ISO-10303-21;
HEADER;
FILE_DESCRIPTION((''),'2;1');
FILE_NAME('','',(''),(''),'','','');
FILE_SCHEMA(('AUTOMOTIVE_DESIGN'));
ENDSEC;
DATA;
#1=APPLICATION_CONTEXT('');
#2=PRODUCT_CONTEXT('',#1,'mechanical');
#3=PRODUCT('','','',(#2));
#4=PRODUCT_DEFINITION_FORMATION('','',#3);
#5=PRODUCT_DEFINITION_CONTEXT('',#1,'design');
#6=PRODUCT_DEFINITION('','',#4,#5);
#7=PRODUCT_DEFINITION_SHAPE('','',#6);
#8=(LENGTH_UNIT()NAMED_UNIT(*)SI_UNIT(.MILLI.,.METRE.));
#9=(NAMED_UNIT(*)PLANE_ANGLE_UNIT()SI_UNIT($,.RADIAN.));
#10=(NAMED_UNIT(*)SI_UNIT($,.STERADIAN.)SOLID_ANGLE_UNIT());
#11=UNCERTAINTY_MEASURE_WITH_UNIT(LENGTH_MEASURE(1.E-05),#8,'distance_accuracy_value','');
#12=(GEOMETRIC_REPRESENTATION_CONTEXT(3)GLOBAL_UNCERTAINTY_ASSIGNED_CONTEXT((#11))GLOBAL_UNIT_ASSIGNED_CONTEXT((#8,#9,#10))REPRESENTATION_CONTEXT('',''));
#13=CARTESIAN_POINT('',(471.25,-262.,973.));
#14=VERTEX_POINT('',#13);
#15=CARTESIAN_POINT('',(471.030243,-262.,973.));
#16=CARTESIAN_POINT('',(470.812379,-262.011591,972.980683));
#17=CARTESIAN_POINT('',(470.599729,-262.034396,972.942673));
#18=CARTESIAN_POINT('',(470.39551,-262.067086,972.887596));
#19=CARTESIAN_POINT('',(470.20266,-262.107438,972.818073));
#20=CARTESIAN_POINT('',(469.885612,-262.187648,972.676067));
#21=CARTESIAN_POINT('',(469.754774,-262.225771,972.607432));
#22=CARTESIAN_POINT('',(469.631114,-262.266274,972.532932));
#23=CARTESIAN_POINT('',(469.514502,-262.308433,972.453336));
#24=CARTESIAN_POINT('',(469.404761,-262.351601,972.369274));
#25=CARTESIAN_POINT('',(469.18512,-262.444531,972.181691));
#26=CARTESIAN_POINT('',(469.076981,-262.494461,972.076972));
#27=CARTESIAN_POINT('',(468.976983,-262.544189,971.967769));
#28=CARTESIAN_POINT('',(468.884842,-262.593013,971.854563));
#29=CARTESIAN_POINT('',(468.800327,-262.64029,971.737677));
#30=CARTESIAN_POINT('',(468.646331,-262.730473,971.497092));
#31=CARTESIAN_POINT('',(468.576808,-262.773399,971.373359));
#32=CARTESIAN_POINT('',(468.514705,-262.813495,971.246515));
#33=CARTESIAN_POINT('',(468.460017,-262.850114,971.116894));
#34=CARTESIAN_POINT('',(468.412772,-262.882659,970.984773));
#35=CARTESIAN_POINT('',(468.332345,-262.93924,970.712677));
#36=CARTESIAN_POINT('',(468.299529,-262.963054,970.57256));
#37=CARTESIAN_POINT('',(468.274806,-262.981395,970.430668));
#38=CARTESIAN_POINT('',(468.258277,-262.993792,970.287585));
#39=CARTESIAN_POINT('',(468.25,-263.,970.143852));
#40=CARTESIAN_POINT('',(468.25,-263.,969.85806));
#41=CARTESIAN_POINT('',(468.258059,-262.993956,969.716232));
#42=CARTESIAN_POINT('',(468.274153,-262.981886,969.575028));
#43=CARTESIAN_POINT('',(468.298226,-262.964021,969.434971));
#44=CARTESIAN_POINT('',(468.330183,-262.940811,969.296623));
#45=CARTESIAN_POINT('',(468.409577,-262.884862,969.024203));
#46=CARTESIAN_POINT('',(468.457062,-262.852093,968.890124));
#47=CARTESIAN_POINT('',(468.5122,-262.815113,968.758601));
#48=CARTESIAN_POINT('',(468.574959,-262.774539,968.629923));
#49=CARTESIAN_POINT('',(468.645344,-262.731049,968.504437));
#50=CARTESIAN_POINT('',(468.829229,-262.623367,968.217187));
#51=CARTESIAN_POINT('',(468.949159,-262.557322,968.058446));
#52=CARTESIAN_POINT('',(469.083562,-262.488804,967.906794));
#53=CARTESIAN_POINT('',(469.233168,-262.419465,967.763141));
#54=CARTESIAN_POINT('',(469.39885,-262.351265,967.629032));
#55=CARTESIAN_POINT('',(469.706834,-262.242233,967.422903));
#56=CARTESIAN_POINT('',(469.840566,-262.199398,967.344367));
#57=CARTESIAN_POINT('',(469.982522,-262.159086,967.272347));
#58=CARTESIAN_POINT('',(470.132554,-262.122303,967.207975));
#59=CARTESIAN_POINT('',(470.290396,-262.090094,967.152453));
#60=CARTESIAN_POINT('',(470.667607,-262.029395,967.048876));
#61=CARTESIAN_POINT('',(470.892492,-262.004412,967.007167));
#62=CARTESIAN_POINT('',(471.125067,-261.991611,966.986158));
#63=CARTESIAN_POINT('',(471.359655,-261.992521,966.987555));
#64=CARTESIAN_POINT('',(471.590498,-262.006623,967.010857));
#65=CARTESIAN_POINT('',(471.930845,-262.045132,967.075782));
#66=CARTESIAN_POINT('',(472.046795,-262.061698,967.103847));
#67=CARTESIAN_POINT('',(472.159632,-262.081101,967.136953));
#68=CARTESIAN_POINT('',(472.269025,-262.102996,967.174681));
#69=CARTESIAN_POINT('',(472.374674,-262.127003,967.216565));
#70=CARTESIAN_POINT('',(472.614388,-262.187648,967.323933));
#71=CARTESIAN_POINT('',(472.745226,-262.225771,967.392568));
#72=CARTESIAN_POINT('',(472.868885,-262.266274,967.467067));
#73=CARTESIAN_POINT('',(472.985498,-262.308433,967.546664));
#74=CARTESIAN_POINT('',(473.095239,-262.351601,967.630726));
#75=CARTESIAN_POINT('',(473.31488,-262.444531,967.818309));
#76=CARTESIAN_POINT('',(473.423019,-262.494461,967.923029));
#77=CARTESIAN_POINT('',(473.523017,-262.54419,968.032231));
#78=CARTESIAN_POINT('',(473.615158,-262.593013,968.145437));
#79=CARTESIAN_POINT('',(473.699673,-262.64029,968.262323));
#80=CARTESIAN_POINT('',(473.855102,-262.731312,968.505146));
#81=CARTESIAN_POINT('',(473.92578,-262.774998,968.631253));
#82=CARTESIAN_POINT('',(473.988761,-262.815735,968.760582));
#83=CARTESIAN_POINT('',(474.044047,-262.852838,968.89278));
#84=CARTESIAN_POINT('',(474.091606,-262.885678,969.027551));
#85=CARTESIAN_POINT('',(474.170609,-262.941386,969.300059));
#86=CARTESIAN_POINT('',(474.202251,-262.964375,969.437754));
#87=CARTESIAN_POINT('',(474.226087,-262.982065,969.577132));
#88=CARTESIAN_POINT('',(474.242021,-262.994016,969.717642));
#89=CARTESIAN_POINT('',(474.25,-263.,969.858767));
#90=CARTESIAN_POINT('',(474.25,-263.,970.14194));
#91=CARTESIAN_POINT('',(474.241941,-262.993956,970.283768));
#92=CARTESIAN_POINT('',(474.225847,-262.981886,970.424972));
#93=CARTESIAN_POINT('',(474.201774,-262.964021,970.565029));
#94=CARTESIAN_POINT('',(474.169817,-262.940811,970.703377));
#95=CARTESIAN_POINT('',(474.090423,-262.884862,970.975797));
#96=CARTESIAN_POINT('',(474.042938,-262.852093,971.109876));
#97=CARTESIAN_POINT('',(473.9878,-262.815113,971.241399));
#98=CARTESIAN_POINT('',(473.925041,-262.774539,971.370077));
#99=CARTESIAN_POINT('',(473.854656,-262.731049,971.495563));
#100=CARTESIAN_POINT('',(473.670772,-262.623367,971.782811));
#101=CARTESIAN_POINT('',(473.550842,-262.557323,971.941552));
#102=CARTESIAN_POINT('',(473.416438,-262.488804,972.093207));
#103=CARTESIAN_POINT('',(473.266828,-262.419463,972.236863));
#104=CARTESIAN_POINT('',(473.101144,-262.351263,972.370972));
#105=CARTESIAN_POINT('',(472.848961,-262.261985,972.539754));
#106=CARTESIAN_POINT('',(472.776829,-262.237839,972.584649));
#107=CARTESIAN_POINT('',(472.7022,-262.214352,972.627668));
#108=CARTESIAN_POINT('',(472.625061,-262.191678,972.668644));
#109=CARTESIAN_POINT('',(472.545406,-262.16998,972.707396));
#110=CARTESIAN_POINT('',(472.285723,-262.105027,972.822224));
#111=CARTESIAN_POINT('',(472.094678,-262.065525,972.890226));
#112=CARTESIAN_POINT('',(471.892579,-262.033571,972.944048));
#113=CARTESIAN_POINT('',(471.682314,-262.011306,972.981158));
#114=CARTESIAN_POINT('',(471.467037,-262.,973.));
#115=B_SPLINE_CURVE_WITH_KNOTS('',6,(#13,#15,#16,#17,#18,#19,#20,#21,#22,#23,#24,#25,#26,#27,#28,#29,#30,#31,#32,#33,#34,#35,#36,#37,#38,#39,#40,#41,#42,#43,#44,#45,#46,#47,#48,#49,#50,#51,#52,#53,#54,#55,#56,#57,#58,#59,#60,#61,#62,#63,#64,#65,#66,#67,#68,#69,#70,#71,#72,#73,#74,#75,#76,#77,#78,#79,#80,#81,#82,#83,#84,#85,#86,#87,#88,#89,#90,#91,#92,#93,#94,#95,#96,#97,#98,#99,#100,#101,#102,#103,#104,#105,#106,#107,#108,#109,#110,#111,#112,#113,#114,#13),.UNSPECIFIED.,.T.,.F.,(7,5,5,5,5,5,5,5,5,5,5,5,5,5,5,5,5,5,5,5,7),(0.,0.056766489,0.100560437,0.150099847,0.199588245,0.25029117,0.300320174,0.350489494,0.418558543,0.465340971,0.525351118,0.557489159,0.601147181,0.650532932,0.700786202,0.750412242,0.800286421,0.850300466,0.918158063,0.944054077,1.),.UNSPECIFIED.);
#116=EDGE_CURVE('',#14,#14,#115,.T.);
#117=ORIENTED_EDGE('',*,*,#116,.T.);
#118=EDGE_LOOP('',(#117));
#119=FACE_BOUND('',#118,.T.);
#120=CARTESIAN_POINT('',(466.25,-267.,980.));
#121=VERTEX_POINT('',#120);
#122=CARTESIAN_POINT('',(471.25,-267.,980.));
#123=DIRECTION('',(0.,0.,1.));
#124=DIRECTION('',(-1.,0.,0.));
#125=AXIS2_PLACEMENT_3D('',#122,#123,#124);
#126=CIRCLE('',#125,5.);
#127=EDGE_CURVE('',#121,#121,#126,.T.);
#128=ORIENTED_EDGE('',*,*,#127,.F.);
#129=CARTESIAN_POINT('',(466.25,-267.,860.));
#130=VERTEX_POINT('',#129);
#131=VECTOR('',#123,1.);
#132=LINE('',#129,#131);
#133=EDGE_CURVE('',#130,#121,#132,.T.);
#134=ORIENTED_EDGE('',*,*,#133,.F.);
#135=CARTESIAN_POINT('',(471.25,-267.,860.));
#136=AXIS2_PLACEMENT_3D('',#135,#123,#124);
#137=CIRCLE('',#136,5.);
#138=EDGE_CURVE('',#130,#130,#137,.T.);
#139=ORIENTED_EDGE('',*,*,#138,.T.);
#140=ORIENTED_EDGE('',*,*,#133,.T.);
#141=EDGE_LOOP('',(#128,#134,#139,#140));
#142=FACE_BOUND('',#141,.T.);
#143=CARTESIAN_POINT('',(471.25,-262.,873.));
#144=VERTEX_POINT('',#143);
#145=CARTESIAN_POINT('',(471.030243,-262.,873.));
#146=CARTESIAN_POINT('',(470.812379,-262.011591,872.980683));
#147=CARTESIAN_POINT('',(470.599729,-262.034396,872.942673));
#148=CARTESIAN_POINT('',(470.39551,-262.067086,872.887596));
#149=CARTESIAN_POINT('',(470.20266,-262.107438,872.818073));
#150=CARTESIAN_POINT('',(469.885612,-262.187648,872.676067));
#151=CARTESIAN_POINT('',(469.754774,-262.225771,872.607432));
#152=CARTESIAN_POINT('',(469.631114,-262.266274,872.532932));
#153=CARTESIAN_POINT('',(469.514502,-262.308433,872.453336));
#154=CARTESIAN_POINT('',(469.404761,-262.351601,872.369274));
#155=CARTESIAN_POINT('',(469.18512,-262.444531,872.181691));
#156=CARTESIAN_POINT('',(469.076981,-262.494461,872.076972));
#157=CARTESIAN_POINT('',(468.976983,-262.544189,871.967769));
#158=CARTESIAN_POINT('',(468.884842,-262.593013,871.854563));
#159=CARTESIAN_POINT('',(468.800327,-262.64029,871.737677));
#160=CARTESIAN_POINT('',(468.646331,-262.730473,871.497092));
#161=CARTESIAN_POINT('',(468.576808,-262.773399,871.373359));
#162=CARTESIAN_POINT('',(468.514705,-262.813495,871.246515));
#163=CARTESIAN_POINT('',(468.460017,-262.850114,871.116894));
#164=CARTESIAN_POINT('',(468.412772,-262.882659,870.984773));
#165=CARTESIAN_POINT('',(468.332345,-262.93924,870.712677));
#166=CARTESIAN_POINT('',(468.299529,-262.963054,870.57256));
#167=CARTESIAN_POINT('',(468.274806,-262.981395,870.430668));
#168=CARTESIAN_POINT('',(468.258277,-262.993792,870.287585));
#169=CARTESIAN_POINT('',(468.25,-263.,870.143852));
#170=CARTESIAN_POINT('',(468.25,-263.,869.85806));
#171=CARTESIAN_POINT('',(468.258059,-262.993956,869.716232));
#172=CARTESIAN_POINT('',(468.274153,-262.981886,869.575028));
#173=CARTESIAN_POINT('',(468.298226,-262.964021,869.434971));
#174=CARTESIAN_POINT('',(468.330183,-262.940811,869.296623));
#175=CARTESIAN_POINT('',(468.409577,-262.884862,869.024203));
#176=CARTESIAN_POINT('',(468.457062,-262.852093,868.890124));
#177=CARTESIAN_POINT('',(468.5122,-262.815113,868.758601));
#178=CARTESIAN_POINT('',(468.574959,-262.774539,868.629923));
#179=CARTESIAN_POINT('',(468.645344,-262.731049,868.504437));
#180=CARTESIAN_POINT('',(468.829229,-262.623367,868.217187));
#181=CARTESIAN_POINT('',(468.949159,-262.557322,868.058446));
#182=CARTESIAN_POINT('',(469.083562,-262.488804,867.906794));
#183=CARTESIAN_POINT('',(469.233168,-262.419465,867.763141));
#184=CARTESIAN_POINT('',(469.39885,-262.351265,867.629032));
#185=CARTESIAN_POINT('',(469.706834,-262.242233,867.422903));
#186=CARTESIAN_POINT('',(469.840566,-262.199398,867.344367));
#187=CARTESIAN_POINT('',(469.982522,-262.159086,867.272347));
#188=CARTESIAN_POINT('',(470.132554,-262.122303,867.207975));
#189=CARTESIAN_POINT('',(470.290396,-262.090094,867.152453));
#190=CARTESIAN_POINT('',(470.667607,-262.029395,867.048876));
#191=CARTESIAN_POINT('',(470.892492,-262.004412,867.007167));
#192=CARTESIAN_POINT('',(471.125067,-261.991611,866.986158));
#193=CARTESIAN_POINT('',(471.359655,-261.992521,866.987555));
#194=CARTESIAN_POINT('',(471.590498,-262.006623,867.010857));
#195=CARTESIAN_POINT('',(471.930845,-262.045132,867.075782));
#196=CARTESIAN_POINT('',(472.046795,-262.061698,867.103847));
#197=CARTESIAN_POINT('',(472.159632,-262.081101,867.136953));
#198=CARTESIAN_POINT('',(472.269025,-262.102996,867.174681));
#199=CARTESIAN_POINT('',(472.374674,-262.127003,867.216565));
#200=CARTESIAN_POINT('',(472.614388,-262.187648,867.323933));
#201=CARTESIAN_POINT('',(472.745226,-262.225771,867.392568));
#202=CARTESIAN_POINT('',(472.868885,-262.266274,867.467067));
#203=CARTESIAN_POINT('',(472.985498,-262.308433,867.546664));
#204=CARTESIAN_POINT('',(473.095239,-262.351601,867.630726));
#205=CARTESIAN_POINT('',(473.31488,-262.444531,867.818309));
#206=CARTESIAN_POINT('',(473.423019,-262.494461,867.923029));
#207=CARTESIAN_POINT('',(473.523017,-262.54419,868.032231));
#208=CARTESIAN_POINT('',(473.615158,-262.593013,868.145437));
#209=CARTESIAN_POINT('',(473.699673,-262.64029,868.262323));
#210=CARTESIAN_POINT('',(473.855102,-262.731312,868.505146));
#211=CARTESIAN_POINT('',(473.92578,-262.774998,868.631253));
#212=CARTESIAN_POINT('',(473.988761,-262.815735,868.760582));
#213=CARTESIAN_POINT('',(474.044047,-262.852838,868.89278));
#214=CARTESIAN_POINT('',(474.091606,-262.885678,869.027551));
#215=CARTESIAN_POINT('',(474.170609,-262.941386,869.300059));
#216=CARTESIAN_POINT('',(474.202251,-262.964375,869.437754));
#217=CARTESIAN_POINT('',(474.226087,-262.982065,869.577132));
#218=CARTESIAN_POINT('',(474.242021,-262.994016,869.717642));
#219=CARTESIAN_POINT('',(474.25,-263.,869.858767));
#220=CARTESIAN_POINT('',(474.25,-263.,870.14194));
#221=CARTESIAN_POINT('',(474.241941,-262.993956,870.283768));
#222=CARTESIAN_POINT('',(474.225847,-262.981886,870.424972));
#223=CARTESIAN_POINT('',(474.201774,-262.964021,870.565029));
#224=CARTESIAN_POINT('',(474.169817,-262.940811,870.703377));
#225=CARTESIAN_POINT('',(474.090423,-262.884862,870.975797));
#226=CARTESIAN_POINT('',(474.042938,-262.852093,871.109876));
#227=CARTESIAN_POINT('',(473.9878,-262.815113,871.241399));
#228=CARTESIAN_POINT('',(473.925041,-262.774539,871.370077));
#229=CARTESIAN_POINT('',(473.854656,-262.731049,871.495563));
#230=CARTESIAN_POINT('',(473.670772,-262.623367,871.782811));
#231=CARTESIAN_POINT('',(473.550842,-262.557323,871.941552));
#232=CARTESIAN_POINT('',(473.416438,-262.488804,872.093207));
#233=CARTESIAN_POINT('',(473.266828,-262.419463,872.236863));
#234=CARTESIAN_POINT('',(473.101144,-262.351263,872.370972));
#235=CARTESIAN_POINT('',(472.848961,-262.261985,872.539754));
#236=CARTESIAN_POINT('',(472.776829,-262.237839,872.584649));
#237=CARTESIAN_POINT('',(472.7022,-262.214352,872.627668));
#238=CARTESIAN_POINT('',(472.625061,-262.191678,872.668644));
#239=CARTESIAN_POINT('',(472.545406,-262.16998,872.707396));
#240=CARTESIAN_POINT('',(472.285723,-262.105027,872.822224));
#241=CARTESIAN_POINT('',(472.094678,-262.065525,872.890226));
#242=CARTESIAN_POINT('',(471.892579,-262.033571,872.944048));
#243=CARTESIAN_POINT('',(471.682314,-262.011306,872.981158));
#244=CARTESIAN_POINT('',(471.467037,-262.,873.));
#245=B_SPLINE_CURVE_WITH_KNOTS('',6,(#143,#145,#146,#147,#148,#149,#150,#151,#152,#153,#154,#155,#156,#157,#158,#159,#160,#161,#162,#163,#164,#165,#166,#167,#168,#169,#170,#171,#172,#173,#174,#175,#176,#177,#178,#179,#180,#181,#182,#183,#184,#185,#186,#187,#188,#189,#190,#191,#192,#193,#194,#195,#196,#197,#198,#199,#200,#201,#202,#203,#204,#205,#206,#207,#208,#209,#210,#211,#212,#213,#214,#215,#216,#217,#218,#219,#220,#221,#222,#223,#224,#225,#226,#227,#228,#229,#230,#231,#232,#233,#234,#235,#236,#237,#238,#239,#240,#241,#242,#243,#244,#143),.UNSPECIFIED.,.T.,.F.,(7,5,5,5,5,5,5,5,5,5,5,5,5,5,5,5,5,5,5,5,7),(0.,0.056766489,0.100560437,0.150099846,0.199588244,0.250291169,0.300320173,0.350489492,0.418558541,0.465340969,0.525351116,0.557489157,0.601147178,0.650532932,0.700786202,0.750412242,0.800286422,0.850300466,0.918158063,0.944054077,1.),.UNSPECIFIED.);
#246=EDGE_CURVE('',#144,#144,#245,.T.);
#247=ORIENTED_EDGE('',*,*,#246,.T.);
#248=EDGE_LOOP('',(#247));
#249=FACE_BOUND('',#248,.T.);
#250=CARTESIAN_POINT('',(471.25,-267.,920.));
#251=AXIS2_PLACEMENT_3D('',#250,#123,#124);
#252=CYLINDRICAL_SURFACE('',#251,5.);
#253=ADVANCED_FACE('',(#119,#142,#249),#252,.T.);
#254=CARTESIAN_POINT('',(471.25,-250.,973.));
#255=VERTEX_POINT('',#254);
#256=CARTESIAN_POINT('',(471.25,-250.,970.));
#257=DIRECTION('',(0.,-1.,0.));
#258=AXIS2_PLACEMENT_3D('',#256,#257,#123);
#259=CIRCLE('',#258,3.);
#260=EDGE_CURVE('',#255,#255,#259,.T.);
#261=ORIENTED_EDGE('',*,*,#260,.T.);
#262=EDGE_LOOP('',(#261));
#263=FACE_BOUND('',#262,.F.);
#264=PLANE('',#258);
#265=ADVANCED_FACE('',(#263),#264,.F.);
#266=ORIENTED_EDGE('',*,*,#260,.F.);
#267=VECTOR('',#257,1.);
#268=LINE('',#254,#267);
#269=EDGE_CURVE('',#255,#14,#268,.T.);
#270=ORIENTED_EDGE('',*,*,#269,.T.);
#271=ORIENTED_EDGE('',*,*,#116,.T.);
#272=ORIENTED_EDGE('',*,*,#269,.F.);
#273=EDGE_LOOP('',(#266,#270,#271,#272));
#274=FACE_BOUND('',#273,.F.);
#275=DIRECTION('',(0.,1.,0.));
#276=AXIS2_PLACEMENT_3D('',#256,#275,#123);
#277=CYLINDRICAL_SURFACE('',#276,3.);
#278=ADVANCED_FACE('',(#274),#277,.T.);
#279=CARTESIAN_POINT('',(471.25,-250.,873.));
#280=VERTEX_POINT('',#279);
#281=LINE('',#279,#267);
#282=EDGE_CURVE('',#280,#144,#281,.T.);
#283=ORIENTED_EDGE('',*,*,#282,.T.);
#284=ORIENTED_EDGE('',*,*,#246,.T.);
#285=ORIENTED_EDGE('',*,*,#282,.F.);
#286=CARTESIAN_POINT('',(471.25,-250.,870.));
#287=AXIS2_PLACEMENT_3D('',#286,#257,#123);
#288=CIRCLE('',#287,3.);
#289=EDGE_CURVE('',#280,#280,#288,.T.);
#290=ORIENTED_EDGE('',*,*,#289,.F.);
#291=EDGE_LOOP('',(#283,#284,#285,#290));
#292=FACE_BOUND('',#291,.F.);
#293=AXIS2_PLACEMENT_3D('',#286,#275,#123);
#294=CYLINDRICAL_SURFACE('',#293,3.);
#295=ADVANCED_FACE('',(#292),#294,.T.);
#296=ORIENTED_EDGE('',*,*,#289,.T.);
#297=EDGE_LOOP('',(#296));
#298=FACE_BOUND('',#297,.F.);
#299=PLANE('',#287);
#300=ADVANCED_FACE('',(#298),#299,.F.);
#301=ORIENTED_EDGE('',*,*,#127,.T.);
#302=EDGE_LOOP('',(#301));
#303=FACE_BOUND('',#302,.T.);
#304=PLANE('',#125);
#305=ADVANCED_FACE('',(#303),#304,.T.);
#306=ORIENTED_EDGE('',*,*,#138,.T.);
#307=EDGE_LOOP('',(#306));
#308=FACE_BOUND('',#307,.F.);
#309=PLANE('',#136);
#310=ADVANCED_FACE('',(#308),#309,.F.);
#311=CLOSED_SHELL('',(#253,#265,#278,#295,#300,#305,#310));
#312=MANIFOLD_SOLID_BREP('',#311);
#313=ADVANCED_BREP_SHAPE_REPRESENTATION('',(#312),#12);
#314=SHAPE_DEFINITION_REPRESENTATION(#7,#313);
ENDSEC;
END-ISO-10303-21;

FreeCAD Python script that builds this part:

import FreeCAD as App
import Part
import Sketcher

doc = App.newDocument("Part")
body = doc.addObject("PartDesign::Body", "Body")

# Sketch on XY plane
sketch1 = body.newObject("Sketcher::SketchObject", "Sketch")
sketch1.AttachmentSupport = (doc.getObject("XY_Plane"), [""])
sketch1.MapMode = "FlatFace"
sketch1.addGeometry(Part.Circle(App.Vector(471, -267, 0), App.Vector(0, 0, 1), 5), False)
sketch1.addConstraint(Sketcher.Constraint("Diameter", 0, 10.0))
sketch1.addConstraint(Sketcher.Constraint("DistanceY", 0, 3, -1, 1, 267.0))
sketch1.addConstraint(Sketcher.Constraint("DistanceX", -1, 1, 0, 3, 471.25))
pad1 = body.newObject("PartDesign::Pad", "Pad")
pad1.Profile = sketch1
pad1.Length = 120
pad1.Midplane = True
body2 = doc.addObject("PartDesign::Body", "Body001")

# Sketch on XZ plane
sketch2 = body2.newObject("Sketcher::SketchObject", "Sketch001")
sketch2.AttachmentSupport = (doc.getObject("XZ_Plane001"), [""])
sketch2.MapMode = "FlatFace"
sketch2.AttachmentOffset = App.Placement(App.Vector(0, 0, 250), App.Rotation())
sketch2.addGeometry(Part.Circle(App.Vector(471.2, 50, 0), App.Vector(0, 0, 1), 3), False)
sketch2.addConstraint(Sketcher.Constraint("Diameter", 0, 6.0))
sketch2.addConstraint(Sketcher.Constraint("DistanceY", -1, 1, 0, 3, 50.0))
sketch2.addConstraint(Sketcher.Constraint("DistanceX", -1, 1, 0, 3, 471.25))
pad2 = body2.newObject("PartDesign::Pad", "Pad001")
pad2.Profile = sketch2
pad2.Length = 17
body3 = doc.addObject("PartDesign::Body", "Body002")

# Sketch on XZ plane
sketch3 = body3.newObject("Sketcher::SketchObject", "Sketch002")
sketch3.AttachmentSupport = (doc.getObject("XZ_Plane002"), [""])
sketch3.MapMode = "FlatFace"
sketch3.AttachmentOffset = App.Placement(App.Vector(0, 0, 250), App.Rotation())
sketch3.addGeometry(Part.Circle(App.Vector(471.2, -50, 0), App.Vector(0, 0, 1), 3), False)
sketch3.addConstraint(Sketcher.Constraint("Diameter", 0, 6.0))
sketch3.addConstraint(Sketcher.Constraint("DistanceY", 0, 3, -1, 1, 50.0))
sketch3.addConstraint(Sketcher.Constraint("DistanceX", -1, 1, 0, 3, 471.25))
pad3 = body3.newObject("PartDesign::Pad", "Pad002")
pad3.Profile = sketch3
pad3.Length = 17
doc.recompute()

boolean = body3.newObject("PartDesign::Boolean", "Boolean")
boolean.Type = "Fuse"
boolean.addObjects([body])
doc.recompute()

boolean2 = body3.newObject("PartDesign::Boolean", "Boolean001")
boolean2.Type = "Fuse"
boolean2.addObjects([body2])
body4 = doc.addObject("PartDesign::Body", "Body003")
doc.recompute()

body3.Placement = App.Placement(App.Vector(0, 0, 920), App.Rotation(App.Vector(0, 0, 1), 0))
boolean3 = body4.newObject("PartDesign::Boolean", "Boolean002")
boolean3.Type = "Fuse"
boolean3.addObjects([body3])

doc.recompute()
